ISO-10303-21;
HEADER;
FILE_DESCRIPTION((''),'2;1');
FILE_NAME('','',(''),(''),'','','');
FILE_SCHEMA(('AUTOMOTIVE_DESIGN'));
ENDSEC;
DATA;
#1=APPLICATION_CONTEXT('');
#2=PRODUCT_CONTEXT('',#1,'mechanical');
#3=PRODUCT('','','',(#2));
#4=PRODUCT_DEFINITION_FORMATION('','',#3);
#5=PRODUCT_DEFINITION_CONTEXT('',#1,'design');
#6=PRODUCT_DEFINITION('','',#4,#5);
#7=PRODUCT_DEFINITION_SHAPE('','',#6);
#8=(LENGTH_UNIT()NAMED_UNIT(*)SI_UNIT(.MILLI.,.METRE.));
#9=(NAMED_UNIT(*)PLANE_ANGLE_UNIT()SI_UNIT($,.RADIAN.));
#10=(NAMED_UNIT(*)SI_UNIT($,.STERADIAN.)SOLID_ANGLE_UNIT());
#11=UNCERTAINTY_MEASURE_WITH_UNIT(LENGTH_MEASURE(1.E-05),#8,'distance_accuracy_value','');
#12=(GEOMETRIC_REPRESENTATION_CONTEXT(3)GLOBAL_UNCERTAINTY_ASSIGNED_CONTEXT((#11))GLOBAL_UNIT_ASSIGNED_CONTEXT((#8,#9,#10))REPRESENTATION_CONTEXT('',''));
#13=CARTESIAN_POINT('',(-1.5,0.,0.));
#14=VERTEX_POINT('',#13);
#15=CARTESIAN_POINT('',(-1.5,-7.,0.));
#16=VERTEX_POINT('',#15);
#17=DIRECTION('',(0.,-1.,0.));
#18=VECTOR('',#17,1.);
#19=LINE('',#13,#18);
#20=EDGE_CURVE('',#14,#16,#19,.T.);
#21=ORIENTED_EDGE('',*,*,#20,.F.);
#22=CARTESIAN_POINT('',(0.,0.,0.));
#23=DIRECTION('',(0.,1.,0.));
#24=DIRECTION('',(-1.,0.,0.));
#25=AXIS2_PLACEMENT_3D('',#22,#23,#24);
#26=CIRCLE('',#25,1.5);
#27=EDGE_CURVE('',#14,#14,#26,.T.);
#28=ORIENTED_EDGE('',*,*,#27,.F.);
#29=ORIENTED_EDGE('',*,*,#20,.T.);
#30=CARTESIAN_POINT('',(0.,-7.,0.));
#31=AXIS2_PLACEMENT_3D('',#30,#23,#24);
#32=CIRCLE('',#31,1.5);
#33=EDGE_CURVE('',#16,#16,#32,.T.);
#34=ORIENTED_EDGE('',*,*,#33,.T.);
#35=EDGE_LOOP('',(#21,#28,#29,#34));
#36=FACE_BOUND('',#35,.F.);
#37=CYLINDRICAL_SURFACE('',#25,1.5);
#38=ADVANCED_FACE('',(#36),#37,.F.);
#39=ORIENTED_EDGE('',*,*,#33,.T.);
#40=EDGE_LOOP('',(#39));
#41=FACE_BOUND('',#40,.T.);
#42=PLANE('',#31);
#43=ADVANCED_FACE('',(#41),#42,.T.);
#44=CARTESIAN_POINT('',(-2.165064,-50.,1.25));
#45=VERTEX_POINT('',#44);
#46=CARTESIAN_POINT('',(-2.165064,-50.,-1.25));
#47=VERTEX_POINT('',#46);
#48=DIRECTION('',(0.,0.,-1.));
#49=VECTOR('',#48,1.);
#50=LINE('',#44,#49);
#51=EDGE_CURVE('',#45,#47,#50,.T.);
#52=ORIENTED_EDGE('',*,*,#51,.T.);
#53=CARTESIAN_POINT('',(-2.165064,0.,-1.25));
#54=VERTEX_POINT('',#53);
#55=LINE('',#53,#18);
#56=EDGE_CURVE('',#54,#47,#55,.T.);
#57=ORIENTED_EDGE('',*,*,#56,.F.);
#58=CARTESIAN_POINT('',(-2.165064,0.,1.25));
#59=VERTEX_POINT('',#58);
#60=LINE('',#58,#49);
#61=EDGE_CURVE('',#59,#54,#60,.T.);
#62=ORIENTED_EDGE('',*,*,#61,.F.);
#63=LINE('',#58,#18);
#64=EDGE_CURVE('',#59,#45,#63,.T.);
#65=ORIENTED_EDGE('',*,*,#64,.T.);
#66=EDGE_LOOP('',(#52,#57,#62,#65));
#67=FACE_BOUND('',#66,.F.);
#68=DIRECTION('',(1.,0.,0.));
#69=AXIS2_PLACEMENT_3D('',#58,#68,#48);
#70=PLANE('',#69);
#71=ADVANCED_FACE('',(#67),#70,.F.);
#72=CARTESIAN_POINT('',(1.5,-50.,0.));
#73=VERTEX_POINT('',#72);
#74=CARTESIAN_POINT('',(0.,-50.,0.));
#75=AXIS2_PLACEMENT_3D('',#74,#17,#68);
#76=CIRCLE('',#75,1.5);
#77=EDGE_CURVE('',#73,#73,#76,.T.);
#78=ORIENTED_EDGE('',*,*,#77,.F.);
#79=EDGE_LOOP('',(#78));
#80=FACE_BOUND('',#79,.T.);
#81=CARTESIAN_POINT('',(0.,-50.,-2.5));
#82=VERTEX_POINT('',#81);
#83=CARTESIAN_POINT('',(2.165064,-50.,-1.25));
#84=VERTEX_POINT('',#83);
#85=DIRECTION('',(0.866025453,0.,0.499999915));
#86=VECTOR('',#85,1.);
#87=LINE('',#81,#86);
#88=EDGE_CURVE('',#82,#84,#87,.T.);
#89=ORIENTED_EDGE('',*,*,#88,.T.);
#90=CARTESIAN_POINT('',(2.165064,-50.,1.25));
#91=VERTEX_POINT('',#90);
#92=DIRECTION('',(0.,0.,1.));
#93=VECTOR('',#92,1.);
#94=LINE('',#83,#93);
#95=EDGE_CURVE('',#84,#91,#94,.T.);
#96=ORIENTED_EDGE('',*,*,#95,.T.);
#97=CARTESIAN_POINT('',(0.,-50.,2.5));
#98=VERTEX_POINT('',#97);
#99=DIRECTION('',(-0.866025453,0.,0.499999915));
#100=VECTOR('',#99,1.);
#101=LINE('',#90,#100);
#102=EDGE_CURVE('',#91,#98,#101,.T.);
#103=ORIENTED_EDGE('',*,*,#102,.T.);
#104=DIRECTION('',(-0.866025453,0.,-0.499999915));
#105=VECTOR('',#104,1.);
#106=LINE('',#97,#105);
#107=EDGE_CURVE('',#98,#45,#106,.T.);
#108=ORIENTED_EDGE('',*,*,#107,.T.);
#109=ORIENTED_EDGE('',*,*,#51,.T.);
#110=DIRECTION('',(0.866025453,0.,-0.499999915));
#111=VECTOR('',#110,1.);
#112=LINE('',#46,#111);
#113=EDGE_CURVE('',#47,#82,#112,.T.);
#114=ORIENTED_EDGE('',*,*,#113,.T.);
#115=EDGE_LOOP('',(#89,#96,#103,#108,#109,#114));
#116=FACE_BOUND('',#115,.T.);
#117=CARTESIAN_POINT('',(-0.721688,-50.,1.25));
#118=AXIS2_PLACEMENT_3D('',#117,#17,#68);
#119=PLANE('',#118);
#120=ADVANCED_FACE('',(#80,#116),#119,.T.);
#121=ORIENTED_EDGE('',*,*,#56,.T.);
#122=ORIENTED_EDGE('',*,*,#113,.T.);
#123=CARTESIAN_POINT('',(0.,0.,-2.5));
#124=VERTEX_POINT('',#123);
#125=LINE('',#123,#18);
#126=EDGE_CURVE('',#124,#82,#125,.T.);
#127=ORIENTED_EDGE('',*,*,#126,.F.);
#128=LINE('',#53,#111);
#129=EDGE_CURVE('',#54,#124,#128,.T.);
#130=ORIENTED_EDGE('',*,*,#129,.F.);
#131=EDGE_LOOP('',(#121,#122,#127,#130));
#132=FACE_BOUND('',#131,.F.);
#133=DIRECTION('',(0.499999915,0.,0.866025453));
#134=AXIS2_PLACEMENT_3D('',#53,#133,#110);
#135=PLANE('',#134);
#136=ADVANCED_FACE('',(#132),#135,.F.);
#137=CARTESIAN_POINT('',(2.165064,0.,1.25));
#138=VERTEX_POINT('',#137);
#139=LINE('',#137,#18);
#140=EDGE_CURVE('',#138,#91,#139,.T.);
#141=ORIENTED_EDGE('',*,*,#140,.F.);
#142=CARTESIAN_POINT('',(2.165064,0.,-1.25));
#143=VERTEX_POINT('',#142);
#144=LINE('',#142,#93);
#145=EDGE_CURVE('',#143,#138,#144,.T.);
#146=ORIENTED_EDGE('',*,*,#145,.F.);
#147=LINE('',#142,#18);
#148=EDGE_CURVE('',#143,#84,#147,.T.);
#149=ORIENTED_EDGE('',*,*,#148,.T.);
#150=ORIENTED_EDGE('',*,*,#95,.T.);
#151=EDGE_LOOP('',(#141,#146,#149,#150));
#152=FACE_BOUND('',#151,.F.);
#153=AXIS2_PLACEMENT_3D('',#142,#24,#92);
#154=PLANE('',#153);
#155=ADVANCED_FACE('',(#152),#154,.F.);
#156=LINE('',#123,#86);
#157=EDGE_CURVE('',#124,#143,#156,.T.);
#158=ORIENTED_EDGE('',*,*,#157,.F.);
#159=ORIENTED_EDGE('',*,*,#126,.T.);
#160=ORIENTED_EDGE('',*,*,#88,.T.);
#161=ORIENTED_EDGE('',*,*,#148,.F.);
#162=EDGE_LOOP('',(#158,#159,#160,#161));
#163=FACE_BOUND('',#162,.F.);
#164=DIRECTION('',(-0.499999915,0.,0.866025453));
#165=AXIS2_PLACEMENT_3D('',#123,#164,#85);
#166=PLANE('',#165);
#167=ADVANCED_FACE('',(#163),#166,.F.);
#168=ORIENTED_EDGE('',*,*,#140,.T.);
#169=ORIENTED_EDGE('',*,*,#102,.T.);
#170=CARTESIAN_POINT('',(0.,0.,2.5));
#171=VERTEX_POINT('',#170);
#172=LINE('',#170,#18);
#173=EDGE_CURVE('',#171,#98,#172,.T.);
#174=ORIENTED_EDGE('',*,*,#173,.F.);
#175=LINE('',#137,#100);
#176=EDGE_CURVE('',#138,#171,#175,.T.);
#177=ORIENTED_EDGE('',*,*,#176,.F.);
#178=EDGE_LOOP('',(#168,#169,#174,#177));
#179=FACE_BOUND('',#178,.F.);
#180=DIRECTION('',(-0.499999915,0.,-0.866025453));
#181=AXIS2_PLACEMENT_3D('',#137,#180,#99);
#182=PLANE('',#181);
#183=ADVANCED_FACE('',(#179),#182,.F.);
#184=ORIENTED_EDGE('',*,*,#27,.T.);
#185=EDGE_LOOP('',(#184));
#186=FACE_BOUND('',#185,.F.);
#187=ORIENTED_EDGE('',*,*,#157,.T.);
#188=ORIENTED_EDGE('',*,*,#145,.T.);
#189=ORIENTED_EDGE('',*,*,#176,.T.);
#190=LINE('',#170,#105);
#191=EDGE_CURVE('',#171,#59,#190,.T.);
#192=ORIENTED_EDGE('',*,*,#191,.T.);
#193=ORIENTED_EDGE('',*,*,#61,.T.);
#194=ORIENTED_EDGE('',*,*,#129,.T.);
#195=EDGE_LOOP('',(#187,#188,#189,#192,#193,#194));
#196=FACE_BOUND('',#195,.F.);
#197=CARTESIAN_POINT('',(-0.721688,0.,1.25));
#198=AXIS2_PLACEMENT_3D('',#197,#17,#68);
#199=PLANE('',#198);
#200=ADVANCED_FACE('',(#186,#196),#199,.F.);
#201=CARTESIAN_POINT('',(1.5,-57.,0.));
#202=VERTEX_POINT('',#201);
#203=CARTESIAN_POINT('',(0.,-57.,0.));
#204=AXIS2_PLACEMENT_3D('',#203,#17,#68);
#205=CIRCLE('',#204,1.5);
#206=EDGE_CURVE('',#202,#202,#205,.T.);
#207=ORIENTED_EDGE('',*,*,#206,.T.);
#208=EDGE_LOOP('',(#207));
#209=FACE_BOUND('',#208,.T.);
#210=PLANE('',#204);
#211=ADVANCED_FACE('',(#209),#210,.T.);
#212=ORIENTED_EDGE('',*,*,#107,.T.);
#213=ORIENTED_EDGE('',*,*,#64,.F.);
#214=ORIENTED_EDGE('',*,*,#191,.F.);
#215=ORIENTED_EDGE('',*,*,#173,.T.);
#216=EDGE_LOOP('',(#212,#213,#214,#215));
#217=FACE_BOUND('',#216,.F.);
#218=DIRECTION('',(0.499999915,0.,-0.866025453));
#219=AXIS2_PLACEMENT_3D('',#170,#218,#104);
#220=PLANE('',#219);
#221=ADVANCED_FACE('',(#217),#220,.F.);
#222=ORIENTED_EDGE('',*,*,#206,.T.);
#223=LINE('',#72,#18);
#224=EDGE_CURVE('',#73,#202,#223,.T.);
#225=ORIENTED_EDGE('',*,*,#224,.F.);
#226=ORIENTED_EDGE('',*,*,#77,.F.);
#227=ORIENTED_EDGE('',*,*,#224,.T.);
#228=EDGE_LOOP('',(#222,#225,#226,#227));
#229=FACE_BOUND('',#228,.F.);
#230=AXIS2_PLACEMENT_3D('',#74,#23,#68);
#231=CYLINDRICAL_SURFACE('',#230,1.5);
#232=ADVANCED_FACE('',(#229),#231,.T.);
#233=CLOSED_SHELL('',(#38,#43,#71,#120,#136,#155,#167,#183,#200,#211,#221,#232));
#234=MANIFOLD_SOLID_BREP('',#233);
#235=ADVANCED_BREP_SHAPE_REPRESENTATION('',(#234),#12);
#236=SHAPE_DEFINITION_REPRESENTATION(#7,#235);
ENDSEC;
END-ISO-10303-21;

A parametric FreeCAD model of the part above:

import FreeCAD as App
import Part
import Sketcher

V = App.Vector
Q = App.Units.Quantity

doc = App.newDocument("Part")
body = doc.addObject("PartDesign::Body", "Body")

# Sketch on XZ plane
sketch1 = body.newObject("Sketcher::SketchObject", "Sketch")
sketch1.AttachmentSupport = (doc.getObject("XZ_Plane"), [""])
sketch1.MapMode = "FlatFace"
sketch1.addGeometry([
    Part.LineSegment(V(-2.2, -1.2, 0), V(0, -2.5, 0)),  # 0
    Part.LineSegment(V(0, -2.5, 0), V(2.2, -1.2, 0)),  # 1
    Part.LineSegment(V(2.2, -1.2, 0), V(2.2, 1.2, 0)),  # 2
    Part.LineSegment(V(2.2, 1.2, 0), V(0, 2.5, 0)),  # 3
    Part.LineSegment(V(0, 2.5, 0), V(-2.2, 1.2, 0)),  # 4
    Part.LineSegment(V(-2.2, 1.2, 0), V(-2.2, -1.2, 0)),  # 5
], False)
sketch1.addConstraint([
    Sketcher.Constraint("Coincident", 0, 2, 1, 1),
    Sketcher.Constraint("Coincident", 1, 2, 2, 1),
    Sketcher.Constraint("Coincident", 2, 2, 3, 1),
    Sketcher.Constraint("Coincident", 3, 2, 4, 1),
    Sketcher.Constraint("Coincident", 4, 2, 5, 1),
    Sketcher.Constraint("Coincident", 5, 2, 0, 1),
    Sketcher.Constraint("Vertical", 2),
    Sketcher.Constraint("Vertical", 5),
    Sketcher.Constraint("Symmetric", 0, 2, 3, 2, -1, 1),
    Sketcher.Constraint("Symmetric", 1, 2, 4, 2, -1, 1),
    Sketcher.Constraint("PointOnObject", 0, 2, -2),
    Sketcher.Constraint("Parallel", 0, 3),
    Sketcher.Constraint("Horizontal", 2, 2, 4, 2),
    Sketcher.Constraint("Angle", 0, Q("-29.999994 deg")),
    Sketcher.Constraint("DistanceY", 2, 1, 2, 2, 2.5),
    Sketcher.Constraint("DistanceY", 0, 2, 3, 2, 5.0),
])
pad1 = body.newObject("PartDesign::Pad", "Pad")
pad1.Profile = sketch1
pad1.Length = 50

# Sketch on XZ plane
sketch2 = body.newObject("Sketcher::SketchObject", "Sketch001")
sketch2.AttachmentSupport = (doc.getObject("XZ_Plane"), [""])
sketch2.MapMode = "FlatFace"
sketch2.AttachmentOffset = App.Placement(V(0, 0, 50), App.Rotation())
sketch2.addGeometry(Part.Circle(V(0, 0, 0), V(0, 0, 1), 1.5), False)
sketch2.addConstraint([
    Sketcher.Constraint("Coincident", 0, 3, -1, 1),
    Sketcher.Constraint("Diameter", 0, 3.0),
])
pad2 = body.newObject("PartDesign::Pad", "Pad001")
pad2.Profile = sketch2
pad2.Length = 7

# Sketch on XZ plane
sketch3 = body.newObject("Sketcher::SketchObject", "Sketch002")
sketch3.AttachmentSupport = (doc.getObject("XZ_Plane"), [""])
sketch3.MapMode = "FlatFace"
sketch3.addGeometry(Part.Circle(V(0, 0, 0), V(0, 0, 1), 1.5), False)
sketch3.addConstraint([
    Sketcher.Constraint("Coincident", 0, 3, -1, 1),
    Sketcher.Constraint("Diameter", 0, 3.0),
])
pocket1 = body.newObject("PartDesign::Pocket", "Pocket")
pocket1.Profile = sketch3
pocket1.Length = 7
pocket1.Reversed = True

doc.recompute()
